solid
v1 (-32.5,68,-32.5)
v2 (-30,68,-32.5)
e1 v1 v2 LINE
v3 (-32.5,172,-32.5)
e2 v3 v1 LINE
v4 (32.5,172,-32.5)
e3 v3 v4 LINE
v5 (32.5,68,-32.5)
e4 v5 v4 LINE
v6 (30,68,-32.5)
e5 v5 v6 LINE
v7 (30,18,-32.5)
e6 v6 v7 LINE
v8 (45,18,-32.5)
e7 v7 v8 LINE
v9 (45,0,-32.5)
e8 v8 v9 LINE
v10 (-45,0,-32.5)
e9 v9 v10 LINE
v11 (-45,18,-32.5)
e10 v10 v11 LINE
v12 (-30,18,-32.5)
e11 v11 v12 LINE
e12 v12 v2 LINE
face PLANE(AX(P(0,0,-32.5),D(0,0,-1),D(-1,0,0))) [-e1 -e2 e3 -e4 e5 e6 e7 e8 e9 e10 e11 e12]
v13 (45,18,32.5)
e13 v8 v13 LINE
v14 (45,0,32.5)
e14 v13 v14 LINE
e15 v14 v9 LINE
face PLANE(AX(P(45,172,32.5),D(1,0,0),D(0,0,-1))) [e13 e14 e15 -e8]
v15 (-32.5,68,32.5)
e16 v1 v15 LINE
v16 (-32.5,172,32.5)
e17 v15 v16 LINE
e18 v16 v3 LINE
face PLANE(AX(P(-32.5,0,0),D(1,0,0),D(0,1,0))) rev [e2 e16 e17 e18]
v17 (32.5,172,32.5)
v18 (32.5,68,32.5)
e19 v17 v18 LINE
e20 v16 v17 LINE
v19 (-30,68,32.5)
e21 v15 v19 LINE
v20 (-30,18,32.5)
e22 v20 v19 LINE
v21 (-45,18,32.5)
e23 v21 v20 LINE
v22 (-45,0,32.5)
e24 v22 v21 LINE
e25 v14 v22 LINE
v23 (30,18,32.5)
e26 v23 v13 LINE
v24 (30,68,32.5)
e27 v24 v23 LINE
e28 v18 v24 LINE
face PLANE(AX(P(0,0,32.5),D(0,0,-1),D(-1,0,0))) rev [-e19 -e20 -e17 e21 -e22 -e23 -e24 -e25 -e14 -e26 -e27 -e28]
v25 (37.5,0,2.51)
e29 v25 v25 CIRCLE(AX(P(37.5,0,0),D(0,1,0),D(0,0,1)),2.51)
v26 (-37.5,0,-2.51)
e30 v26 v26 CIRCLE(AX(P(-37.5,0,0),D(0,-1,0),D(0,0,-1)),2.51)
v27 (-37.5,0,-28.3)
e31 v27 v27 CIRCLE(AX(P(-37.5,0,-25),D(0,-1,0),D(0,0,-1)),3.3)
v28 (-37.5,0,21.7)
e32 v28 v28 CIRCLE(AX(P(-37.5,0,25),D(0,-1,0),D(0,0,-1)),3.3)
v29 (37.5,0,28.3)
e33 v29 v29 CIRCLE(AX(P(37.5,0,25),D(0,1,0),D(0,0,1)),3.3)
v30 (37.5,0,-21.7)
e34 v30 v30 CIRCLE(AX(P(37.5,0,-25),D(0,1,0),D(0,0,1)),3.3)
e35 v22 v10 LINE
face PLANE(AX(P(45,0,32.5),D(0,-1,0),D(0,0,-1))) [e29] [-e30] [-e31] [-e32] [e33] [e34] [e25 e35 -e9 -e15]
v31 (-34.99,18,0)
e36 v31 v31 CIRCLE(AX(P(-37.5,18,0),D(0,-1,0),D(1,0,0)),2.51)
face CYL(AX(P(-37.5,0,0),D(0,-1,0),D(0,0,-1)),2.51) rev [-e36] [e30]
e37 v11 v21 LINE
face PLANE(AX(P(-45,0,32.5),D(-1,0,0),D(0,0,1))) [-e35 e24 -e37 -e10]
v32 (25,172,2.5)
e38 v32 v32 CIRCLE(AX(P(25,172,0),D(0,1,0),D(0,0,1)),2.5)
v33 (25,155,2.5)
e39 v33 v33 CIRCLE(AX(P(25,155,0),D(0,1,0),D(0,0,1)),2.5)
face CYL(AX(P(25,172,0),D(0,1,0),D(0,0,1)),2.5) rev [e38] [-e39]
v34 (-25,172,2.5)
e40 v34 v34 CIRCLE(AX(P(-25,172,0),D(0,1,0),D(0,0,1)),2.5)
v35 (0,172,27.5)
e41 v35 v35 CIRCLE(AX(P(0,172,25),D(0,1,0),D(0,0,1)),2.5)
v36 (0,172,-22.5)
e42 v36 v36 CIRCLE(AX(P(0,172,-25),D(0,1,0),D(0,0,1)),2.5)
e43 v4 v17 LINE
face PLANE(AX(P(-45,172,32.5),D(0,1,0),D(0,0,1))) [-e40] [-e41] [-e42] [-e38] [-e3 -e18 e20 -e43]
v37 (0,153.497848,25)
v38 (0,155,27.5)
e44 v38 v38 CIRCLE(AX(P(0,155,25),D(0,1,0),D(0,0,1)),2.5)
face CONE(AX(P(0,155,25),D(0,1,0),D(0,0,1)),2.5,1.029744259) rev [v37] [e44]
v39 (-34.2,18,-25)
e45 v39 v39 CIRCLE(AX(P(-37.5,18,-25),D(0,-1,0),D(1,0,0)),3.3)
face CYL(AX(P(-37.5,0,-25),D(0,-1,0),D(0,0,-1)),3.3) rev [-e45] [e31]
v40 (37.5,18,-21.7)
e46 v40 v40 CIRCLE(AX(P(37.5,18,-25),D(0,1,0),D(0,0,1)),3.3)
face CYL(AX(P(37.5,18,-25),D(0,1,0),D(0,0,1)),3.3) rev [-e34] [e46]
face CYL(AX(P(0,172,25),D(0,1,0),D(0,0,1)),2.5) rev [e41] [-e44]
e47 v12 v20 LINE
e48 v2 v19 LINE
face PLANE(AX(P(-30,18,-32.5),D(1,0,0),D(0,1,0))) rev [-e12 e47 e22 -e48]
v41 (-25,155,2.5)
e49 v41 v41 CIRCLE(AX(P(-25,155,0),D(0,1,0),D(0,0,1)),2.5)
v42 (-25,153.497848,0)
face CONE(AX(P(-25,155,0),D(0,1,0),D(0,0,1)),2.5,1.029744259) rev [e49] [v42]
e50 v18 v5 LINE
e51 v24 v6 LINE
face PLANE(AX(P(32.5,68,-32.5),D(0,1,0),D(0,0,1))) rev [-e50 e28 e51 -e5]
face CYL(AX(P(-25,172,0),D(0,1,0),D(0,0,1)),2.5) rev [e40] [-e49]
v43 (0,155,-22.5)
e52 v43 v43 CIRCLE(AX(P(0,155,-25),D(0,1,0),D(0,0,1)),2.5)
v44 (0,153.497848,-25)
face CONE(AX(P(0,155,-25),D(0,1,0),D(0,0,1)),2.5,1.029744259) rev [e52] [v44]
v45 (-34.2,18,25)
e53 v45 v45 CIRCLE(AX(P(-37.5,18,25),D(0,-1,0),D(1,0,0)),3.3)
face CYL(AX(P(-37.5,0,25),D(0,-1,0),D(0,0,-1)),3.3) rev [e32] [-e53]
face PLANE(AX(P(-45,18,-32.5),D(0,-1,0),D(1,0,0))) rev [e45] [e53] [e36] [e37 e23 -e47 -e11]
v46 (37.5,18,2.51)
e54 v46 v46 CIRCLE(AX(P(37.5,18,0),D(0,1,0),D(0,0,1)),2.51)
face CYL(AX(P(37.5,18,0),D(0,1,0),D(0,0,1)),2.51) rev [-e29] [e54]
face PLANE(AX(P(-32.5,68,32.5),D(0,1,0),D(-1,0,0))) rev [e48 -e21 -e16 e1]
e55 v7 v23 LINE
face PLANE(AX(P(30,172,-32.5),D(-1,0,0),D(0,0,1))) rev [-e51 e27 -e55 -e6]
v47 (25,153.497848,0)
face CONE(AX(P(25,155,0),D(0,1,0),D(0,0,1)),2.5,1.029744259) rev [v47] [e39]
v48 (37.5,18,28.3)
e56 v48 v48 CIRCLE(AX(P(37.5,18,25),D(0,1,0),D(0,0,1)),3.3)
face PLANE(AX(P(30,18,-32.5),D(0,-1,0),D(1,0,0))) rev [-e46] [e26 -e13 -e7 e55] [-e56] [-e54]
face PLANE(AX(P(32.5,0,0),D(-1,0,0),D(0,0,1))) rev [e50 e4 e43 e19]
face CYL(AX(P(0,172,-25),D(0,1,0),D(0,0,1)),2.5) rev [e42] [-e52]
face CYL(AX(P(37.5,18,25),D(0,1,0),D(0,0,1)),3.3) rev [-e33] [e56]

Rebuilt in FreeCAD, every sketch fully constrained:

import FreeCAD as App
import Part
import Sketcher

doc = App.newDocument("Part")
body = doc.addObject("PartDesign::Body", "Body")

sketch1 = body.newObject("Sketcher::SketchObject", "Sketch")
sketch1.AttachmentSupport = (doc.getObject("XY_Plane"), [""])
sketch1.MapMode = "FlatFace"
sketch1.AttachmentOffset = App.Placement(App.Vector(0, 0, -32.5), App.Rotation())
sketch1.addGeometry([
    Part.LineSegment(App.Vector(45, 172, 0), App.Vector(45, 0, 0)),
    Part.LineSegment(App.Vector(45, 0, 0), App.Vector(-45, 0, 0)),
    Part.LineSegment(App.Vector(-45, 0, 0), App.Vector(-45, 172, 0)),
    Part.LineSegment(App.Vector(-45, 172, 0), App.Vector(45, 172, 0)),
], False)
sketch1.addConstraint([
    Sketcher.Constraint("Coincident", 0, 2, 1, 1),
    Sketcher.Constraint("Coincident", 1, 2, 2, 1),
    Sketcher.Constraint("Coincident", 2, 2, 3, 1),
    Sketcher.Constraint("Coincident", 3, 2, 0, 1),
    Sketcher.Constraint("Vertical", 0),
    Sketcher.Constraint("Horizontal", 1),
    Sketcher.Constraint("Vertical", 2),
    Sketcher.Constraint("Horizontal", 3),
    Sketcher.Constraint("Symmetric", 0, 2, 1, 2, -1, 1),
    Sketcher.Constraint("DistanceX", 1, 2, 1, 1, 90.0),
    Sketcher.Constraint("DistanceY", 0, 2, 0, 1, 172.0),
])
pad1 = body.newObject("PartDesign::Pad", "Pad")
pad1.Profile = sketch1
pad1.Length = 65

sketch2 = body.newObject("Sketcher::SketchObject", "Sketch001")
sketch2.AttachmentSupport = (doc.getObject("XY_Plane"), [""])
sketch2.MapMode = "FlatFace"
sketch2.AttachmentOffset = App.Placement(App.Vector(0, 0, 32.5), App.Rotation())
sketch2.addGeometry([
    Part.LineSegment(App.Vector(-45, 172, 0), App.Vector(-45, 18, 0)),
    Part.LineSegment(App.Vector(-45, 18, 0), App.Vector(-30, 18, 0)),
    Part.LineSegment(App.Vector(-30, 18, 0), App.Vector(-30, 172, 0)),
    Part.LineSegment(App.Vector(-30, 172, 0), App.Vector(-45, 172, 0)),
], False)
sketch2.addConstraint([
    Sketcher.Constraint("Coincident", 0, 2, 1, 1),
    Sketcher.Constraint("Coincident", 1, 2, 2, 1),
    Sketcher.Constraint("Coincident", 2, 2, 3, 1),
    Sketcher.Constraint("Coincident", 3, 2, 0, 1),
    Sketcher.Constraint("Vertical", 0),
    Sketcher.Constraint("Horizontal", 1),
    Sketcher.Constraint("Vertical", 2),
    Sketcher.Constraint("Horizontal", 3),
    Sketcher.Constraint("DistanceX", 1, 1, 1, 2, 15.0),
    Sketcher.Constraint("DistanceY", 0, 2, 0, 1, 154.0),
    Sketcher.Constraint("DistanceX", 0, 2, -1, 1, 45.0),
    Sketcher.Constraint("DistanceY", -1, 1, 0, 2, 18.0),
])
pocket1 = body.newObject("PartDesign::Pocket", "Pocket")
pocket1.Profile = sketch2
pocket1.Type = "ThroughAll"

sketch3 = body.newObject("Sketcher::SketchObject", "Sketch002")
sketch3.AttachmentSupport = (doc.getObject("YZ_Plane"), [""])
sketch3.MapMode = "FlatFace"
sketch3.AttachmentOffset = App.Placement(App.Vector(0, 0, -30), App.Rotation())
sketch3.addGeometry([
    Part.LineSegment(App.Vector(172, -32, 0), App.Vector(68, -32, 0)),
    Part.LineSegment(App.Vector(68, -32, 0), App.Vector(68, 32, 0)),
    Part.LineSegment(App.Vector(68, 32, 0), App.Vector(172, 32, 0)),
    Part.LineSegment(App.Vector(172, 32, 0), App.Vector(172, -32, 0)),
], False)
sketch3.addConstraint([
    Sketcher.Constraint("Coincident", 0, 2, 1, 1),
    Sketcher.Constraint("Coincident", 1, 2, 2, 1),
    Sketcher.Constraint("Coincident", 2, 2, 3, 1),
    Sketcher.Constraint("Coincident", 3, 2, 0, 1),
    Sketcher.Constraint("Horizontal", 0),
    Sketcher.Constraint("Vertical", 1),
    Sketcher.Constraint("Horizontal", 2),
    Sketcher.Constraint("Vertical", 3),
    Sketcher.Constraint("DistanceX", 0, 2, 0, 1, 104.0),
    Sketcher.Constraint("DistanceY", 1, 1, 1, 2, 65.0),
    Sketcher.Constraint("DistanceX", -1, 1, 0, 2, 68.0),
    Sketcher.Constraint("DistanceY", 0, 2, -1, 1, 32.5),
])
pad2 = body.newObject("PartDesign::Pad", "Pad001")
pad2.Profile = sketch3
pad2.Length = 2.5
pad2.Reversed = True

sketch4 = body.newObject("Sketcher::SketchObject", "Sketch003")
sketch4.AttachmentSupport = (doc.getObject("XY_Plane"), [""])
sketch4.MapMode = "FlatFace"
sketch4.AttachmentOffset = App.Placement(App.Vector(0, 0, 32.5), App.Rotation())
sketch4.addGeometry([
    Part.LineSegment(App.Vector(30, 172, 0), App.Vector(30, 18, 0)),
    Part.LineSegment(App.Vector(30, 18, 0), App.Vector(45, 18, 0)),
    Part.LineSegment(App.Vector(45, 18, 0), App.Vector(45, 172, 0)),
    Part.LineSegment(App.Vector(45, 172, 0), App.Vector(30, 172, 0)),
], False)
sketch4.addConstraint([
    Sketcher.Constraint("Coincident", 0, 2, 1, 1),
    Sketcher.Constraint("Coincident", 1, 2, 2, 1),
    Sketcher.Constraint("Coincident", 2, 2, 3, 1),
    Sketcher.Constraint("Coincident", 3, 2, 0, 1),
    Sketcher.Constraint("Vertical", 0),
    Sketcher.Constraint("Horizontal", 1),
    Sketcher.Constraint("Vertical", 2),
    Sketcher.Constraint("Horizontal", 3),
    Sketcher.Constraint("DistanceX", 1, 1, 1, 2, 15.0),
    Sketcher.Constraint("DistanceY", 0, 2, 0, 1, 154.0),
    Sketcher.Constraint("DistanceX", -1, 1, 0, 2, 30.0),
    Sketcher.Constraint("DistanceY", -1, 1, 0, 2, 18.0),
])
pocket2 = body.newObject("PartDesign::Pocket", "Pocket001")
pocket2.Profile = sketch4
pocket2.Type = "ThroughAll"

sketch5 = body.newObject("Sketcher::SketchObject", "Sketch004")
sketch5.AttachmentSupport = (doc.getObject("YZ_Plane"), [""])
sketch5.MapMode = "FlatFace"
sketch5.AttachmentOffset = App.Placement(App.Vector(0, 0, 30), App.Rotation())
sketch5.addGeometry([
    Part.LineSegment(App.Vector(172, 32, 0), App.Vector(68, 32, 0)),
    Part.LineSegment(App.Vector(68, 32, 0), App.Vector(68, -32, 0)),
    Part.LineSegment(App.Vector(68, -32, 0), App.Vector(172, -32, 0)),
    Part.LineSegment(App.Vector(172, -32, 0), App.Vector(172, 32, 0)),
], False)
sketch5.addConstraint([
    Sketcher.Constraint("Coincident", 0, 2, 1, 1),
    Sketcher.Constraint("Coincident", 1, 2, 2, 1),
    Sketcher.Constraint("Coincident", 2, 2, 3, 1),
    Sketcher.Constraint("Coincident", 3, 2, 0, 1),
    Sketcher.Constraint("Horizontal", 0),
    Sketcher.Constraint("Vertical", 1),
    Sketcher.Constraint("Horizontal", 2),
    Sketcher.Constraint("Vertical", 3),
    Sketcher.Constraint("DistanceX", 0, 2, 0, 1, 104.0),
    Sketcher.Constraint("DistanceY", 1, 2, 1, 1, 65.0),
    Sketcher.Constraint("DistanceX", -1, 1, 0, 2, 68.0),
    Sketcher.Constraint("DistanceY", -1, 1, 0, 2, 32.5),
])
pad3 = body.newObject("PartDesign::Pad", "Pad002")
pad3.Profile = sketch5
pad3.Length = 2.5

sketch6 = body.newObject("Sketcher::SketchObject", "Sketch005")
sketch6.AttachmentSupport = (doc.getObject("XZ_Plane"), [""])
sketch6.MapMode = "FlatFace"
sketch6.addGeometry([
    Part.Circle(App.Vector(-37.5, 25, 0), App.Vector(0, 0, 1), 3.3),
    Part.Circle(App.Vector(-37.5, -25, 0), App.Vector(0, 0, 1), 3.3),
], False)
sketch6.addConstraint([
    Sketcher.Constraint("Equal", 0, 1),
    Sketcher.Constraint("Symmetric", 0, 3, 1, 3, -1),
    Sketcher.Constraint("Diameter", 0, 6.6),
    Sketcher.Constraint("DistanceY", -1, 1, 0, 3, 25.0),
    Sketcher.Constraint("DistanceX", 0, 3, -1, 1, 37.5),
])
doc.recompute()
hole = body.newObject("PartDesign::Hole", "Hole")
hole.Profile = sketch6
hole.ThreadType = "None"
hole.Diameter = 6.6
hole.DepthType = "Dimension"
hole.Depth = 172
hole.DrillPoint = "Flat"

sketch7 = body.newObject("Sketcher::SketchObject", "Sketch006")
sketch7.AttachmentSupport = (doc.getObject("XZ_Plane"), [""])
sketch7.MapMode = "FlatFace"
sketch7.addGeometry(Part.Circle(App.Vector(-37.5, 0, 0), App.Vector(0, 0, 1), 2.5), False)
sketch7.addConstraint([
    Sketcher.Constraint("PointOnObject", 0, 3, -1),
    Sketcher.Constraint("Diameter", 0, 5.02),
    Sketcher.Constraint("DistanceX", 0, 3, -1, 1, 37.5),
])
doc.recompute()
hole2 = body.newObject("PartDesign::Hole", "Hole001")
hole2.Profile = sketch7
hole2.ThreadType = "None"
hole2.Diameter = 5.02
hole2.DepthType = "Dimension"
hole2.Depth = 172
hole2.DrillPoint = "Flat"

sketch8 = body.newObject("Sketcher::SketchObject", "Sketch007")
sketch8.AttachmentSupport = (doc.getObject("XZ_Plane"), [""])
sketch8.MapMode = "FlatFace"
sketch8.AttachmentOffset = App.Placement(App.Vector(0, 0, -18), App.Rotation())
sketch8.addGeometry([
    Part.Circle(App.Vector(37.5, -25, 0), App.Vector(0, 0, 1), 3.3),
    Part.Circle(App.Vector(37.5, 25, 0), App.Vector(0, 0, 1), 3.3),
], False)
sketch8.addConstraint([
    Sketcher.Constraint("Equal", 0, 1),
    Sketcher.Constraint("Symmetric", 0, 3, 1, 3, -1),
    Sketcher.Constraint("Diameter", 0, 6.6),
    Sketcher.Constraint("DistanceY", 0, 3, -1, 1, 25.0),
    Sketcher.Constraint("DistanceX", -1, 1, 0, 3, 37.5),
])
doc.recompute()
hole3 = body.newObject("PartDesign::Hole", "Hole002")
hole3.Profile = sketch8
hole3.ThreadType = "None"
hole3.Diameter = 6.6
hole3.DepthType = "ThroughAll"
hole3.Reversed = True

sketch9 = body.newObject("Sketcher::SketchObject", "Sketch008")
sketch9.AttachmentSupport = (doc.getObject("XZ_Plane"), [""])
sketch9.MapMode = "FlatFace"
sketch9.AttachmentOffset = App.Placement(App.Vector(0, 0, -18), App.Rotation())
sketch9.addGeometry(Part.Circle(App.Vector(37.5, 0, 0), App.Vector(0, 0, 1), 2.5), False)
sketch9.addConstraint([
    Sketcher.Constraint("PointOnObject", 0, 3, -1),
    Sketcher.Constraint("Diameter", 0, 5.02),
    Sketcher.Constraint("DistanceX", -1, 1, 0, 3, 37.5),
])
doc.recompute()
hole4 = body.newObject("PartDesign::Hole", "Hole003")
hole4.Profile = sketch9
hole4.ThreadType = "None"
hole4.Diameter = 5.02
hole4.DepthType = "ThroughAll"
hole4.Reversed = True

sketch10 = body.newObject("Sketcher::SketchObject", "Sketch009")
sketch10.AttachmentSupport = (doc.getObject("XZ_Plane"), [""])
sketch10.MapMode = "FlatFace"
sketch10.AttachmentOffset = App.Placement(App.Vector(0, 0, -172), App.Rotation())
sketch10.addGeometry([
    Part.Circle(App.Vector(-25, 0, 0), App.Vector(0, 0, 1), 2.5),
    Part.Circle(App.Vector(25, 0, 0), App.Vector(0, 0, 1), 2.5),
    Part.Circle(App.Vector(0, -25, 0), App.Vector(0, 0, 1), 2.5),
    Part.Circle(App.Vector(0, 25, 0), App.Vector(0, 0, 1), 2.5),
], False)
sketch10.addConstraint([
    Sketcher.Constraint("Equal", 0, 1),
    Sketcher.Constraint("Equal", 1, 2),
    Sketcher.Constraint("Equal", 2, 3),
    Sketcher.Constraint("Symmetric", 0, 3, 1, 3, -1, 1),
    Sketcher.Constraint("Symmetric", 2, 3, 3, 3, -1, 1),
    Sketcher.Constraint("PointOnObject", 0, 3, -1),
    Sketcher.Constraint("PointOnObject", 2, 3, -2),
    Sketcher.Constraint("Diameter", 0, 5.0),
    Sketcher.Constraint("DistanceX", 0, 3, -1, 1, 25.0),
    Sketcher.Constraint("DistanceY", 2, 3, -1, 1, 25.0),
])
doc.recompute()
hole5 = body.newObject("PartDesign::Hole", "Hole004")
hole5.Profile = sketch10
hole5.ThreadType = "None"
hole5.Diameter = 5
hole5.DepthType = "Dimension"
hole5.Depth = 17
hole5.DrillPoint = "Angled"
hole5.DrillPointAngle = 118
hole5.Reversed = True

doc.recompute()
